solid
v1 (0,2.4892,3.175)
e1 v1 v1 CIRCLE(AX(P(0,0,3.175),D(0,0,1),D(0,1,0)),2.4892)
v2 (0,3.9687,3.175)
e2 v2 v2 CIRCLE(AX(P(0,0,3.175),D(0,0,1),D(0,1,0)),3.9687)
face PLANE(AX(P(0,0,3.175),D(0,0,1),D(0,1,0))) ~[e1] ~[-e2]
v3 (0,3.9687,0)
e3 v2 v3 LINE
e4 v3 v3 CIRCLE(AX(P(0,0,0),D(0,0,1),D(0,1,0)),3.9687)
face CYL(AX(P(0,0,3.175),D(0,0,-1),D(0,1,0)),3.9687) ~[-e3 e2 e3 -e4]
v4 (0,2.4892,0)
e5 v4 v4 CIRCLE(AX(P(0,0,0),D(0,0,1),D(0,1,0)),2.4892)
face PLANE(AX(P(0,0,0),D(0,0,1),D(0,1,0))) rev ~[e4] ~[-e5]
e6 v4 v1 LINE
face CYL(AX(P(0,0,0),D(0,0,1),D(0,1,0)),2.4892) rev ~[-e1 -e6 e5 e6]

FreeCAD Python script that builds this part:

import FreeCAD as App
import Part
import Sketcher

V = App.Vector
Q = App.Units.Quantity


def add_polygon(sketch, points):
    """Adds a closed chain of lines whose ends are joined by coincident constraints."""
    first, n = sketch.GeometryCount, len(points)
    for a, b in zip(points, points[1:] + points[:1]):
        sketch.addGeometry(Part.LineSegment(App.Vector(*a, 0), App.Vector(*b, 0)), False)
    for i in range(n):
        sketch.addConstraint(Sketcher.Constraint("Coincident", first + i, 2, first + (i + 1) % n, 1))

doc = App.newDocument("Part")
params = doc.addObject("Spreadsheet::Sheet", "Params")
for row, (alias, value) in enumerate([
    ("sketch1_height", "0.125 in"),
    ("revolution_angle", "360 deg"),
], start=1):
    params.set(f"A{row}", alias)
    params.set(f"B{row}", "=" + value)
    params.setAlias(f"B{row}", alias)

body = doc.addObject("PartDesign::Body", "Body")

# Sketch on YZ plane
sketch1 = body.newObject("Sketcher::SketchObject", "Sketch")
sketch1.AttachmentSupport = (doc.getObject("YZ_Plane"), [""])
sketch1.MapMode = "FlatFace"
add_polygon(sketch1, [(4, 3.2), (2.5, 3.2), (2.5, 0), (4, 0)])  # lines 0-3
sketch1.addConstraint([
    Sketcher.Constraint("Horizontal", 0),
    Sketcher.Constraint("Vertical", 1),
    Sketcher.Constraint("Horizontal", 2),
    Sketcher.Constraint("Vertical", 3),
    Sketcher.Constraint("PointOnObject", 1, 2, -1),
    Sketcher.Constraint("DistanceY", 1, 2, 1, 1, Q("0.125 in")),
    Sketcher.Constraint("DistanceX", -1, 1, 0, 2, Q("0.098 in")),
    Sketcher.Constraint("DistanceX", -1, 1, 2, 2, Q("0.156248 in")),
])
sketch1.setExpression("Constraints[9]", "Params.sketch1_height")
revolution = body.newObject("PartDesign::Revolution", "Revolution")
revolution.Profile = sketch1
revolution.ReferenceAxis = (sketch1, ["V_Axis"])
revolution.setExpression("Angle", "Params.revolution_angle")

doc.recompute()
